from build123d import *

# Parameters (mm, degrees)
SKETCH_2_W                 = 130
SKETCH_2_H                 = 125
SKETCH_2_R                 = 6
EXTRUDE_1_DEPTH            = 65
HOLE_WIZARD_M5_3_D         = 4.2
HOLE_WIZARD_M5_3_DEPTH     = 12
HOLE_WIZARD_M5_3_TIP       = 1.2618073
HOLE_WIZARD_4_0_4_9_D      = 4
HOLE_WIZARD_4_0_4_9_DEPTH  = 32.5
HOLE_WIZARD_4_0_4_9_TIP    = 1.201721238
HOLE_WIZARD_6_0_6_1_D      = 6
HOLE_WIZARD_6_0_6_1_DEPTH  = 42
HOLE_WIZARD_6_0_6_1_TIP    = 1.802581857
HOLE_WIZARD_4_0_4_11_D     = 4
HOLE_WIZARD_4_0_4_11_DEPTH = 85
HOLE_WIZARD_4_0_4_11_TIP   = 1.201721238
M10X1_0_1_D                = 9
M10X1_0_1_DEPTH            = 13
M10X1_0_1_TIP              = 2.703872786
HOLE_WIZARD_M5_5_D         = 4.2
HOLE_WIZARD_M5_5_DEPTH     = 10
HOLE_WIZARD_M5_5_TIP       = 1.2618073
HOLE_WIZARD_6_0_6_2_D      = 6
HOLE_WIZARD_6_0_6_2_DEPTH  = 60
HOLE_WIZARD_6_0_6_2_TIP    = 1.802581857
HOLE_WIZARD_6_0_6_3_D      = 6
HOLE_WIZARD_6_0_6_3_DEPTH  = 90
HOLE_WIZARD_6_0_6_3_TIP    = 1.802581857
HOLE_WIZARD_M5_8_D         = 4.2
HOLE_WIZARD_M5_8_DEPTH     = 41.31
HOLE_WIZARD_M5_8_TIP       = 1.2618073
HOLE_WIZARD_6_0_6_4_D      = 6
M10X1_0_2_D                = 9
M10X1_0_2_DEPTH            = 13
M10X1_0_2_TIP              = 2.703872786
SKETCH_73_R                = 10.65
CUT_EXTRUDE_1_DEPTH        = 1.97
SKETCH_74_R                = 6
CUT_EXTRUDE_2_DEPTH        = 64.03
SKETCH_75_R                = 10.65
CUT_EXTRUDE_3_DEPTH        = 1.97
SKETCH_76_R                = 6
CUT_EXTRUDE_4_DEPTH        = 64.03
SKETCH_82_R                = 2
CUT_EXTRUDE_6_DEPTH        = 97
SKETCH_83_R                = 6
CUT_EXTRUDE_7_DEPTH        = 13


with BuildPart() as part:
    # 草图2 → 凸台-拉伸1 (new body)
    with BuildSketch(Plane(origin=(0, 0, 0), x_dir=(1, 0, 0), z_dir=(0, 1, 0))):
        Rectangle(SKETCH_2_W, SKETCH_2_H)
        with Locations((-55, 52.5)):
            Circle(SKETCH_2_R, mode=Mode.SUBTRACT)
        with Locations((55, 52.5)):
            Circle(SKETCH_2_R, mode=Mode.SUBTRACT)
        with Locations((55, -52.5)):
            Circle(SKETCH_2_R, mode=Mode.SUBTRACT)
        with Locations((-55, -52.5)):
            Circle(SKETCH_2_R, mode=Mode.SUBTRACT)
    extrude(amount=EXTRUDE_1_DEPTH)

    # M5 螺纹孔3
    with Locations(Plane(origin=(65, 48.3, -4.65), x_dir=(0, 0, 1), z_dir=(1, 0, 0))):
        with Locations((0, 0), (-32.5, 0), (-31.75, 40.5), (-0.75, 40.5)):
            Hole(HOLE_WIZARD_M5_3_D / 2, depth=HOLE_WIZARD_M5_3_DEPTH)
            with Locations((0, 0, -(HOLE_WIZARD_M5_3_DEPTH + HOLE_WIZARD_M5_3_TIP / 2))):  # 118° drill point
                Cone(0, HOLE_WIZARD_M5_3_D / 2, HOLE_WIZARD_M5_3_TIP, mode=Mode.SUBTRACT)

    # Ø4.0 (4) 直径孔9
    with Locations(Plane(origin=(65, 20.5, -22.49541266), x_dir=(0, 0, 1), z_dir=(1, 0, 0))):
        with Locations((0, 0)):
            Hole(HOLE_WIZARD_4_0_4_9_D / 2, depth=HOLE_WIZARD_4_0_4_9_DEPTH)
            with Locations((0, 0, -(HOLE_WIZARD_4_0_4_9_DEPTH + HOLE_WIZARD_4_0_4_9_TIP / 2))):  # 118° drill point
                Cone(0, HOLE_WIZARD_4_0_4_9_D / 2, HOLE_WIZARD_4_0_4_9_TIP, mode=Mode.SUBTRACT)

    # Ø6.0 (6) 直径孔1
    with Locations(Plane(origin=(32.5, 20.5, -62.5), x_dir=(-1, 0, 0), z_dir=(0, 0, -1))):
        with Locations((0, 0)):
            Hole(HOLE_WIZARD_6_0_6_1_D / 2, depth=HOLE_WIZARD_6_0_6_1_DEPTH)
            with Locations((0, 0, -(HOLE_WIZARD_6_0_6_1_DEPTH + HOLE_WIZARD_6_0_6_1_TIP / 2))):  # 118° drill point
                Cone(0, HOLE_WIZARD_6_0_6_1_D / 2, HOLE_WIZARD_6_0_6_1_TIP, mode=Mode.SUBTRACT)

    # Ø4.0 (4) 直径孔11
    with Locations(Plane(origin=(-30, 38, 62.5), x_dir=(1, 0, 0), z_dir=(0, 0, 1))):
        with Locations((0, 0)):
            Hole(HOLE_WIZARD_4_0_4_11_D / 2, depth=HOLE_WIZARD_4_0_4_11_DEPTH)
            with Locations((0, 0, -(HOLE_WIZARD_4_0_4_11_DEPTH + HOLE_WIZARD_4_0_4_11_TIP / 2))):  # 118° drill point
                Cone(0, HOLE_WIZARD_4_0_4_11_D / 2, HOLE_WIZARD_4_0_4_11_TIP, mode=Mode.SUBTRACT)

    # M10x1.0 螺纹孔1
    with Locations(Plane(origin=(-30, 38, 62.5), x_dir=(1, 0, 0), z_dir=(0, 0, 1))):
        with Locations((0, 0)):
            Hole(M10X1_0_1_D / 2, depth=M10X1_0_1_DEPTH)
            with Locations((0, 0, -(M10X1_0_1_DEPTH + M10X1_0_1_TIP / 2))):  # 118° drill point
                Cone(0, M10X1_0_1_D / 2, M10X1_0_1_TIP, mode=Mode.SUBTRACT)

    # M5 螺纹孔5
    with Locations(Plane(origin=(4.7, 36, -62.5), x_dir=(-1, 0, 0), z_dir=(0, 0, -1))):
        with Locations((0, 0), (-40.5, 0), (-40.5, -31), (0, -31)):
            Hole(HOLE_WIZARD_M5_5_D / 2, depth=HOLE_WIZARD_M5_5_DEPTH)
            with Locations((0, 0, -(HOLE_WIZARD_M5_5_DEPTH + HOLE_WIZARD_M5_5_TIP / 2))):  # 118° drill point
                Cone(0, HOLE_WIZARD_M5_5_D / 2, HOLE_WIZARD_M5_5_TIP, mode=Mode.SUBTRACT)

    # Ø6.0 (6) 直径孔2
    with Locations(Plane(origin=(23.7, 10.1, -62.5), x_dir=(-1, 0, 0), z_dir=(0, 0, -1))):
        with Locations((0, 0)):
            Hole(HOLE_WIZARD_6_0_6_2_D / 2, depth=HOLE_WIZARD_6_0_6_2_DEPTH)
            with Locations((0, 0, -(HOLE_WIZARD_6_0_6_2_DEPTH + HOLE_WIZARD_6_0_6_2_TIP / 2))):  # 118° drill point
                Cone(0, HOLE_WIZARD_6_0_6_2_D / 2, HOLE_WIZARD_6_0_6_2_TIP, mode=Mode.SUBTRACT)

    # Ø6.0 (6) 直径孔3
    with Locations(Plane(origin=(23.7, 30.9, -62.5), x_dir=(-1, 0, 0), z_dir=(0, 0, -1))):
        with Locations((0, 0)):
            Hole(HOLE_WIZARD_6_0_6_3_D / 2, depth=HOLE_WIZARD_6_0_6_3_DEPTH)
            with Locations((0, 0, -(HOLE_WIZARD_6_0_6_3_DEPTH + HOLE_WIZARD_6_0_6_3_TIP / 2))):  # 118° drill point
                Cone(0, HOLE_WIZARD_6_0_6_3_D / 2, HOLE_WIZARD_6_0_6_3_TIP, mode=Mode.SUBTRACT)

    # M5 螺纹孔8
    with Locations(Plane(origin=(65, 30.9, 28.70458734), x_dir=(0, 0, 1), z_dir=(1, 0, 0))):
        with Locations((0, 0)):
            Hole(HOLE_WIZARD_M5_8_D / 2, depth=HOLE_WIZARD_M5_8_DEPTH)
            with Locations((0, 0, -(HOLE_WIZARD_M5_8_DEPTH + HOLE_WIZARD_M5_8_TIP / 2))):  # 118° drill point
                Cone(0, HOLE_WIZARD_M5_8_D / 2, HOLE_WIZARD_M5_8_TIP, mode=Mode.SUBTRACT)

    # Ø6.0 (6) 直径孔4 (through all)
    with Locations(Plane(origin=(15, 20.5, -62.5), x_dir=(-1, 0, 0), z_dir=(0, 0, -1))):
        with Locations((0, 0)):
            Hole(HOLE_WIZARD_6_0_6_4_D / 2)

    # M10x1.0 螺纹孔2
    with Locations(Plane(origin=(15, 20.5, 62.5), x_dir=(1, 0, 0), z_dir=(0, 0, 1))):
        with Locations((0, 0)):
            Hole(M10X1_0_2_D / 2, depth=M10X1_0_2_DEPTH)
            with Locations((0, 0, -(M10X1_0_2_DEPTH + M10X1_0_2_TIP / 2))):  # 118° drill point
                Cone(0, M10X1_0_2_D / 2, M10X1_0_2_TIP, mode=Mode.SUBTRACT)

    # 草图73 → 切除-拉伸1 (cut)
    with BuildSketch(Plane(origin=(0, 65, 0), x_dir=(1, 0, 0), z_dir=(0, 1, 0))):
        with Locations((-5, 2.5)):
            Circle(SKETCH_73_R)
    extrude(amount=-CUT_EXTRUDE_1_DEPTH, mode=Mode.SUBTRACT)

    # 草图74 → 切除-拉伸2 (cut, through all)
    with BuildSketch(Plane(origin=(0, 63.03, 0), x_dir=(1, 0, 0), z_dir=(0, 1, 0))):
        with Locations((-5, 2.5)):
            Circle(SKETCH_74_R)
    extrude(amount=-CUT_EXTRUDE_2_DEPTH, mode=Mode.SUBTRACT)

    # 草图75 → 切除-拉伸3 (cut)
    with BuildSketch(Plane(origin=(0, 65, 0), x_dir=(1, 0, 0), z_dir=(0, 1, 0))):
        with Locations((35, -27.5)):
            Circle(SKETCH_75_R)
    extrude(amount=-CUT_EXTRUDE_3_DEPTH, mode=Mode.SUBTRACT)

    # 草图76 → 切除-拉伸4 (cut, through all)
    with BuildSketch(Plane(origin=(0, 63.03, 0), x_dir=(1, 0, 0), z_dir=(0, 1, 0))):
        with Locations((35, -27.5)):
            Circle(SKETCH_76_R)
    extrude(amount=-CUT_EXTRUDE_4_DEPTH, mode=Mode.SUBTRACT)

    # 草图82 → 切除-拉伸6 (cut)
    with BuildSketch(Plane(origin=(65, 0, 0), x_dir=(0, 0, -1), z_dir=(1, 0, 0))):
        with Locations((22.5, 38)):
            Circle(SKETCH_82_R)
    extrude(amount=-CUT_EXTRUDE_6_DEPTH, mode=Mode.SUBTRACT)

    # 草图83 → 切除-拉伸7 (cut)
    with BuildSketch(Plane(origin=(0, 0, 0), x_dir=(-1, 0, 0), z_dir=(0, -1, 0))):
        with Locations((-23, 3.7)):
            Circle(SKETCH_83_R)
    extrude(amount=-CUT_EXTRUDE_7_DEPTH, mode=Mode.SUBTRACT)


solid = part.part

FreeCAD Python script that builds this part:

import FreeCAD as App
import Part
import Sketcher
from FreeCAD import Vector

doc = App.newDocument("Part")
body = doc.addObject("PartDesign::Body", "Body")

sketch1 = body.newObject("Sketcher::SketchObject", "Sketch")
sketch1.AttachmentSupport = (doc.getObject("XZ_Plane"), [""])
sketch1.MapMode = "FlatFace"
sketch1.addGeometry(Part.LineSegment(Vector(-65, -62.5, 0), Vector(-65, 62.5, 0)), False)
sketch1.addGeometry(Part.LineSegment(Vector(-65, 62.5, 0), Vector(65, 62.5, 0)), False)
sketch1.addGeometry(Part.LineSegment(Vector(65, 62.5, 0), Vector(65, -62.5, 0)), False)
sketch1.addGeometry(Part.LineSegment(Vector(65, -62.5, 0), Vector(-65, -62.5, 0)), False)
sketch1.addGeometry(Part.Circle(Vector(-55, 52.5, 0), Vector(0, 0, 1), 6), False)
sketch1.addGeometry(Part.Circle(Vector(55, 52.5, 0), Vector(0, 0, 1), 6), False)
sketch1.addGeometry(Part.Circle(Vector(-55, -52.5, 0), Vector(0, 0, 1), 6), False)
sketch1.addGeometry(Part.Circle(Vector(55, -52.5, 0), Vector(0, 0, 1), 6), False)
sketch1.addConstraint(Sketcher.Constraint("Coincident", 0, 2, 1, 1))
sketch1.addConstraint(Sketcher.Constraint("Coincident", 1, 2, 2, 1))
sketch1.addConstraint(Sketcher.Constraint("Coincident", 2, 2, 3, 1))
sketch1.addConstraint(Sketcher.Constraint("Coincident", 3, 2, 0, 1))
sketch1.addConstraint(Sketcher.Constraint("Vertical", 0))
sketch1.addConstraint(Sketcher.Constraint("Horizontal", 1))
sketch1.addConstraint(Sketcher.Constraint("Vertical", 2))
sketch1.addConstraint(Sketcher.Constraint("Horizontal", 3))
sketch1.addConstraint(Sketcher.Constraint("Equal", 4, 5))
sketch1.addConstraint(Sketcher.Constraint("Equal", 5, 6))
sketch1.addConstraint(Sketcher.Constraint("Equal", 6, 7))
sketch1.addConstraint(Sketcher.Constraint("Symmetric", 5, 3, 6, 3, -1, 1))
sketch1.addConstraint(Sketcher.Constraint("Symmetric", 4, 3, 7, 3, -1, 1))
sketch1.addConstraint(Sketcher.Constraint("Symmetric", 0, 2, 2, 2, -1, 1))
sketch1.addConstraint(Sketcher.Constraint("Symmetric", 4, 3, 5, 3, -2))
sketch1.addConstraint(Sketcher.Constraint("Diameter", 4, 12.0))
sketch1.addConstraint(Sketcher.Constraint("DistanceX", 1, 1, 1, 2, 130.0))
sketch1.addConstraint(Sketcher.Constraint("DistanceY", 0, 1, 0, 2, 125.0))
sketch1.addConstraint(Sketcher.Constraint("DistanceX", 4, 3, -1, 1, 55.0))
sketch1.addConstraint(Sketcher.Constraint("DistanceY", 6, 3, 4, 3, 105.0))
pad1 = body.newObject("PartDesign::Pad", "Pad")
pad1.Profile = sketch1
pad1.Length = 65
pad1.Reversed = True

sketch2 = body.newObject("Sketcher::SketchObject", "Sketch001")
sketch2.AttachmentSupport = (doc.getObject("YZ_Plane"), [""])
sketch2.MapMode = "FlatFace"
sketch2.AttachmentOffset = App.Placement(Vector(0, 0, 65), App.Rotation())
sketch2.addGeometry(Part.Circle(Vector(48.3, -4.65, 0), Vector(0, 0, 1), 2.1), False)
sketch2.addGeometry(Part.Circle(Vector(48.3, -37.15, 0), Vector(0, 0, 1), 2.1), False)
sketch2.addGeometry(Part.Circle(Vector(7.8, -36.4, 0), Vector(0, 0, 1), 2.1), False)
sketch2.addGeometry(Part.Circle(Vector(7.8, -5.4, 0), Vector(0, 0, 1), 2.1), False)
sketch2.addConstraint(Sketcher.Constraint("Equal", 0, 1))
sketch2.addConstraint(Sketcher.Constraint("Equal", 1, 2))
sketch2.addConstraint(Sketcher.Constraint("Equal", 2, 3))
sketch2.addConstraint(Sketcher.Constraint("Vertical", 0, 3, 1, 3))
sketch2.addConstraint(Sketcher.Constraint("Vertical", 2, 3, 3, 3))
sketch2.addConstraint(Sketcher.Constraint("Diameter", 0, 4.2))
sketch2.addConstraint(Sketcher.Constraint("DistanceY", 2, 3, 3, 3, 31.0))
sketch2.addConstraint(Sketcher.Constraint("DistanceX", -1, 1, 0, 3, 48.3))
sketch2.addConstraint(Sketcher.Constraint("DistanceX", -1, 1, 2, 3, 7.8))
sketch2.addConstraint(Sketcher.Constraint("DistanceY", 2, 3, -1, 1, 36.4))
sketch2.addConstraint(Sketcher.Constraint("DistanceY", 1, 3, 0, 3, 32.5))
sketch2.addConstraint(Sketcher.Constraint("DistanceY", 0, 3, -1, 1, 4.65))
doc.recompute()
hole = body.newObject("PartDesign::Hole", "Hole")
hole.Profile = sketch2
hole.ThreadType = "None"
hole.Diameter = 4.2
hole.DepthType = "Dimension"
hole.Depth = 12
hole.DrillPoint = "Angled"
hole.DrillPointAngle = 118

sketch3 = body.newObject("Sketcher::SketchObject", "Sketch002")
sketch3.AttachmentSupport = (doc.getObject("YZ_Plane"), [""])
sketch3.MapMode = "FlatFace"
sketch3.AttachmentOffset = App.Placement(Vector(0, 0, 65), App.Rotation())
sketch3.addGeometry(Part.Circle(Vector(20.5, -22.495413, 0), Vector(0, 0, 1), 2), False)
sketch3.addConstraint(Sketcher.Constraint("Diameter", 0, 4.0))
sketch3.addConstraint(Sketcher.Constraint("DistanceX", -1, 1, 0, 3, 20.5))
sketch3.addConstraint(Sketcher.Constraint("DistanceY", 0, 3, -1, 1, 22.495413))
doc.recompute()
hole2 = body.newObject("PartDesign::Hole", "Hole001")
hole2.Profile = sketch3
hole2.ThreadType = "None"
hole2.Diameter = 4
hole2.DepthType = "Dimension"
hole2.Depth = 32.5
hole2.DrillPoint = "Angled"
hole2.DrillPointAngle = 118

sketch4 = body.newObject("Sketcher::SketchObject", "Sketch003")
sketch4.AttachmentSupport = (doc.getObject("XY_Plane"), [""])
sketch4.MapMode = "FlatFace"
sketch4.AttachmentOffset = App.Placement(Vector(0, 0, -62.5), App.Rotation())
sketch4.addGeometry(Part.Circle(Vector(32.5, 20.5, 0), Vector(0, 0, 1), 3), False)
sketch4.addConstraint(Sketcher.Constraint("Diameter", 0, 6.0))
sketch4.addConstraint(Sketcher.Constraint("DistanceX", -1, 1, 0, 3, 32.5))
sketch4.addConstraint(Sketcher.Constraint("DistanceY", -1, 1, 0, 3, 20.5))
doc.recompute()
hole3 = body.newObject("PartDesign::Hole", "Hole002")
hole3.Profile = sketch4
hole3.ThreadType = "None"
hole3.Diameter = 6
hole3.DepthType = "Dimension"
hole3.Depth = 42
hole3.DrillPoint = "Angled"
hole3.DrillPointAngle = 118
hole3.Reversed = True

sketch5 = body.newObject("Sketcher::SketchObject", "Sketch004")
sketch5.AttachmentSupport = (doc.getObject("XY_Plane"), [""])
sketch5.MapMode = "FlatFace"
sketch5.AttachmentOffset = App.Placement(Vector(0, 0, 62.5), App.Rotation())
sketch5.addGeometry(Part.Circle(Vector(-30, 38, 0), Vector(0, 0, 1), 2), False)
sketch5.addConstraint(Sketcher.Constraint("Diameter", 0, 4.0))
sketch5.addConstraint(Sketcher.Constraint("DistanceX", 0, 3, -1, 1, 30.0))
sketch5.addConstraint(Sketcher.Constraint("DistanceY", -1, 1, 0, 3, 38.0))
doc.recompute()
hole4 = body.newObject("PartDesign::Hole", "Hole003")
hole4.Profile = sketch5
hole4.ThreadType = "None"
hole4.Diameter = 4
hole4.DepthType = "Dimension"
hole4.Depth = 85
hole4.DrillPoint = "Angled"
hole4.DrillPointAngle = 118

sketch6 = body.newObject("Sketcher::SketchObject", "Sketch005")
sketch6.AttachmentSupport = (doc.getObject("XY_Plane"), [""])
sketch6.MapMode = "FlatFace"
sketch6.AttachmentOffset = App.Placement(Vector(0, 0, 62.5), App.Rotation())
sketch6.addGeometry(Part.Circle(Vector(-30, 38, 0), Vector(0, 0, 1), 4.5), False)
sketch6.addConstraint(Sketcher.Constraint("Diameter", 0, 9.0))
sketch6.addConstraint(Sketcher.Constraint("DistanceX", 0, 3, -1, 1, 30.0))
sketch6.addConstraint(Sketcher.Constraint("DistanceY", -1, 1, 0, 3, 38.0))
doc.recompute()
hole5 = body.newObject("PartDesign::Hole", "Hole004")
hole5.Profile = sketch6
hole5.ThreadType = "None"
hole5.Diameter = 9
hole5.DepthType = "Dimension"
hole5.Depth = 13
hole5.DrillPoint = "Angled"
hole5.DrillPointAngle = 118

sketch7 = body.newObject("Sketcher::SketchObject", "Sketch006")
sketch7.AttachmentSupport = (doc.getObject("XY_Plane"), [""])
sketch7.MapMode = "FlatFace"
sketch7.AttachmentOffset = App.Placement(Vector(0, 0, -62.5), App.Rotation())
sketch7.addGeometry(Part.Circle(Vector(4.7, 36, 0), Vector(0, 0, 1), 2.1), False)
sketch7.addGeometry(Part.Circle(Vector(45.2, 36, 0), Vector(0, 0, 1), 2.1), False)
sketch7.addGeometry(Part.Circle(Vector(45.2, 5, 0), Vector(0, 0, 1), 2.1), False)
sketch7.addGeometry(Part.Circle(Vector(4.7, 5, 0), Vector(0, 0, 1), 2.1), False)
sketch7.addConstraint(Sketcher.Constraint("Equal", 0, 1))
sketch7.addConstraint(Sketcher.Constraint("Equal", 1, 2))
sketch7.addConstraint(Sketcher.Constraint("Equal", 2, 3))
sketch7.addConstraint(Sketcher.Constraint("Horizontal", 0, 3, 1, 3))
sketch7.addConstraint(Sketcher.Constraint("Horizontal", 2, 3, 3, 3))
sketch7.addConstraint(Sketcher.Constraint("Vertical", 1, 3, 2, 3))
sketch7.addConstraint(Sketcher.Constraint("Vertical", 0, 3, 3, 3))
sketch7.addConstraint(Sketcher.Constraint("Diameter", 0, 4.2))
sketch7.addConstraint(Sketcher.Constraint("DistanceY", -1, 1, 0, 3, 36.0))
sketch7.addConstraint(Sketcher.Constraint("DistanceY", -1, 1, 2, 3, 5.0))
sketch7.addConstraint(Sketcher.Constraint("DistanceX", -1, 1, 0, 3, 4.7))
sketch7.addConstraint(Sketcher.Constraint("DistanceX", -1, 1, 1, 3, 45.2))
doc.recompute()
hole6 = body.newObject("PartDesign::Hole", "Hole005")
hole6.Profile = sketch7
hole6.ThreadType = "None"
hole6.Diameter = 4.2
hole6.DepthType = "Dimension"
hole6.Depth = 10
hole6.DrillPoint = "Angled"
hole6.DrillPointAngle = 118
hole6.Reversed = True

sketch8 = body.newObject("Sketcher::SketchObject", "Sketch007")
sketch8.AttachmentSupport = (doc.getObject("XY_Plane"), [""])
sketch8.MapMode = "FlatFace"
sketch8.AttachmentOffset = App.Placement(Vector(0, 0, -62.5), App.Rotation())
sketch8.addGeometry(Part.Circle(Vector(23.7, 10.1, 0), Vector(0, 0, 1), 3), False)
sketch8.addConstraint(Sketcher.Constraint("Diameter", 0, 6.0))
sketch8.addConstraint(Sketcher.Constraint("DistanceX", -1, 1, 0, 3, 23.7))
sketch8.addConstraint(Sketcher.Constraint("DistanceY", -1, 1, 0, 3, 10.1))
doc.recompute()
hole7 = body.newObject("PartDesign::Hole", "Hole006")
hole7.Profile = sketch8
hole7.ThreadType = "None"
hole7.Diameter = 6
hole7.DepthType = "Dimension"
hole7.Depth = 60
hole7.DrillPoint = "Angled"
hole7.DrillPointAngle = 118
hole7.Reversed = True

sketch9 = body.newObject("Sketcher::SketchObject", "Sketch008")
sketch9.AttachmentSupport = (doc.getObject("XY_Plane"), [""])
sketch9.MapMode = "FlatFace"
sketch9.AttachmentOffset = App.Placement(Vector(0, 0, -62.5), App.Rotation())
sketch9.addGeometry(Part.Circle(Vector(23.7, 30.9, 0), Vector(0, 0, 1), 3), False)
sketch9.addConstraint(Sketcher.Constraint("Diameter", 0, 6.0))
sketch9.addConstraint(Sketcher.Constraint("DistanceX", -1, 1, 0, 3, 23.7))
sketch9.addConstraint(Sketcher.Constraint("DistanceY", -1, 1, 0, 3, 30.9))
doc.recompute()
hole8 = body.newObject("PartDesign::Hole", "Hole007")
hole8.Profile = sketch9
hole8.ThreadType = "None"
hole8.Diameter = 6
hole8.DepthType = "Dimension"
hole8.Depth = 90
hole8.DrillPoint = "Angled"
hole8.DrillPointAngle = 118
hole8.Reversed = True

sketch10 = body.newObject("Sketcher::SketchObject", "Sketch009")
sketch10.AttachmentSupport = (doc.getObject("YZ_Plane"), [""])
sketch10.MapMode = "FlatFace"
sketch10.AttachmentOffset = App.Placement(Vector(0, 0, 65), App.Rotation())
sketch10.addGeometry(Part.Circle(Vector(30.9, 28.704587, 0), Vector(0, 0, 1), 2.1), False)
sketch10.addConstraint(Sketcher.Constraint("Diameter", 0, 4.2))
sketch10.addConstraint(Sketcher.Constraint("DistanceX", -1, 1, 0, 3, 30.9))
sketch10.addConstraint(Sketcher.Constraint("DistanceY", -1, 1, 0, 3, 28.704587))
doc.recompute()
hole9 = body.newObject("PartDesign::Hole", "Hole008")
hole9.Profile = sketch10
hole9.ThreadType = "None"
hole9.Diameter = 4.2
hole9.DepthType = "Dimension"
hole9.Depth = 41.31
hole9.DrillPoint = "Angled"
hole9.DrillPointAngle = 118

sketch11 = body.newObject("Sketcher::SketchObject", "Sketch010")
sketch11.AttachmentSupport = (doc.getObject("XY_Plane"), [""])
sketch11.MapMode = "FlatFace"
sketch11.AttachmentOffset = App.Placement(Vector(0, 0, -62.5), App.Rotation())
sketch11.addGeometry(Part.Circle(Vector(15, 20.5, 0), Vector(0, 0, 1), 3), False)
sketch11.addConstraint(Sketcher.Constraint("Diameter", 0, 6.0))
sketch11.addConstraint(Sketcher.Constraint("DistanceX", -1, 1, 0, 3, 15.0))
sketch11.addConstraint(Sketcher.Constraint("DistanceY", -1, 1, 0, 3, 20.5))
doc.recompute()
hole10 = body.newObject("PartDesign::Hole", "Hole009")
hole10.Profile = sketch11
hole10.ThreadType = "None"
hole10.Diameter = 6
hole10.DepthType = "ThroughAll"
hole10.Reversed = True

sketch12 = body.newObject("Sketcher::SketchObject", "Sketch011")
sketch12.AttachmentSupport = (doc.getObject("XY_Plane"), [""])
sketch12.MapMode = "FlatFace"
sketch12.AttachmentOffset = App.Placement(Vector(0, 0, 62.5), App.Rotation())
sketch12.addGeometry(Part.Circle(Vector(15, 20.5, 0), Vector(0, 0, 1), 4.5), False)
sketch12.addConstraint(Sketcher.Constraint("Diameter", 0, 9.0))
sketch12.addConstraint(Sketcher.Constraint("DistanceX", -1, 1, 0, 3, 15.0))
sketch12.addConstraint(Sketcher.Constraint("DistanceY", -1, 1, 0, 3, 20.5))
doc.recompute()
hole11 = body.newObject("PartDesign::Hole", "Hole010")
hole11.Profile = sketch12
hole11.ThreadType = "None"
hole11.Diameter = 9
hole11.DepthType = "Dimension"
hole11.Depth = 13
hole11.DrillPoint = "Angled"
hole11.DrillPointAngle = 118

sketch13 = body.newObject("Sketcher::SketchObject", "Sketch012")
sketch13.AttachmentSupport = (doc.getObject("XZ_Plane"), [""])
sketch13.MapMode = "FlatFace"
sketch13.AttachmentOffset = App.Placement(Vector(0, 0, -65), App.Rotation())
sketch13.addGeometry(Part.Circle(Vector(-5, -2.5, 0), Vector(0, 0, 1), 10.65), False)
sketch13.addConstraint(Sketcher.Constraint("Diameter", 0, 21.3))
sketch13.addConstraint(Sketcher.Constraint("DistanceX", 0, 3, -1, 1, 5.0))
sketch13.addConstraint(Sketcher.Constraint("DistanceY", 0, 3, -1, 1, 2.5))
pocket1 = body.newObject("PartDesign::Pocket", "Pocket")
pocket1.Profile = sketch13
pocket1.Length = 1.97
pocket1.Reversed = True

sketch14 = body.newObject("Sketcher::SketchObject", "Sketch013")
sketch14.AttachmentSupport = (doc.getObject("XZ_Plane"), [""])
sketch14.MapMode = "FlatFace"
sketch14.AttachmentOffset = App.Placement(Vector(0, 0, -63.03), App.Rotation())
sketch14.addGeometry(Part.Circle(Vector(-5, -2.5, 0), Vector(0, 0, 1), 6), False)
sketch14.addConstraint(Sketcher.Constraint("Diameter", 0, 12.0))
sketch14.addConstraint(Sketcher.Constraint("DistanceX", 0, 3, -1, 1, 5.0))
sketch14.addConstraint(Sketcher.Constraint("DistanceY", 0, 3, -1, 1, 2.5))
pocket2 = body.newObject("PartDesign::Pocket", "Pocket001")
pocket2.Profile = sketch14
pocket2.Type = "ThroughAll"
pocket2.Reversed = True

sketch15 = body.newObject("Sketcher::SketchObject", "Sketch014")
sketch15.AttachmentSupport = (doc.getObject("XZ_Plane"), [""])
sketch15.MapMode = "FlatFace"
sketch15.AttachmentOffset = App.Placement(Vector(0, 0, -65), App.Rotation())
sketch15.addGeometry(Part.Circle(Vector(35, 27.5, 0), Vector(0, 0, 1), 10.65), False)
sketch15.addConstraint(Sketcher.Constraint("Diameter", 0, 21.3))
sketch15.addConstraint(Sketcher.Constraint("DistanceX", -1, 1, 0, 3, 35.0))
sketch15.addConstraint(Sketcher.Constraint("DistanceY", -1, 1, 0, 3, 27.5))
pocket3 = body.newObject("PartDesign::Pocket", "Pocket002")
pocket3.Profile = sketch15
pocket3.Length = 1.97
pocket3.Reversed = True

sketch16 = body.newObject("Sketcher::SketchObject", "Sketch015")
sketch16.AttachmentSupport = (doc.getObject("XZ_Plane"), [""])
sketch16.MapMode = "FlatFace"
sketch16.AttachmentOffset = App.Placement(Vector(0, 0, -63.03), App.Rotation())
sketch16.addGeometry(Part.Circle(Vector(35, 27.5, 0), Vector(0, 0, 1), 6), False)
sketch16.addConstraint(Sketcher.Constraint("Diameter", 0, 12.0))
sketch16.addConstraint(Sketcher.Constraint("DistanceX", -1, 1, 0, 3, 35.0))
sketch16.addConstraint(Sketcher.Constraint("DistanceY", -1, 1, 0, 3, 27.5))
pocket4 = body.newObject("PartDesign::Pocket", "Pocket003")
pocket4.Profile = sketch16
pocket4.Type = "ThroughAll"
pocket4.Reversed = True

sketch17 = body.newObject("Sketcher::SketchObject", "Sketch016")
sketch17.AttachmentSupport = (doc.getObject("YZ_Plane"), [""])
sketch17.MapMode = "FlatFace"
sketch17.AttachmentOffset = App.Placement(Vector(0, 0, 65), App.Rotation())
sketch17.addGeometry(Part.Circle(Vector(38, -22.5, 0), Vector(0, 0, 1), 2), False)
sketch17.addConstraint(Sketcher.Constraint("Diameter", 0, 4.0))
sketch17.addConstraint(Sketcher.Constraint("DistanceX", -1, 1, 0, 3, 38.0))
sketch17.addConstraint(Sketcher.Constraint("DistanceY", 0, 3, -1, 1, 22.5))
pocket5 = body.newObject("PartDesign::Pocket", "Pocket004")
pocket5.Profile = sketch17
pocket5.Length = 97

sketch18 = body.newObject("Sketcher::SketchObject", "Sketch017")
sketch18.AttachmentSupport = (doc.getObject("XZ_Plane"), [""])
sketch18.MapMode = "FlatFace"
sketch18.addGeometry(Part.Circle(Vector(23, -3.7, 0), Vector(0, 0, 1), 6), False)
sketch18.addConstraint(Sketcher.Constraint("Diameter", 0, 12.0))
sketch18.addConstraint(Sketcher.Constraint("DistanceX", -1, 1, 0, 3, 23.0))
sketch18.addConstraint(Sketcher.Constraint("DistanceY", 0, 3, -1, 1, 3.7))
pocket6 = body.newObject("PartDesign::Pocket", "Pocket005")
pocket6.Profile = sketch18
pocket6.Length = 13

doc.recompute()
